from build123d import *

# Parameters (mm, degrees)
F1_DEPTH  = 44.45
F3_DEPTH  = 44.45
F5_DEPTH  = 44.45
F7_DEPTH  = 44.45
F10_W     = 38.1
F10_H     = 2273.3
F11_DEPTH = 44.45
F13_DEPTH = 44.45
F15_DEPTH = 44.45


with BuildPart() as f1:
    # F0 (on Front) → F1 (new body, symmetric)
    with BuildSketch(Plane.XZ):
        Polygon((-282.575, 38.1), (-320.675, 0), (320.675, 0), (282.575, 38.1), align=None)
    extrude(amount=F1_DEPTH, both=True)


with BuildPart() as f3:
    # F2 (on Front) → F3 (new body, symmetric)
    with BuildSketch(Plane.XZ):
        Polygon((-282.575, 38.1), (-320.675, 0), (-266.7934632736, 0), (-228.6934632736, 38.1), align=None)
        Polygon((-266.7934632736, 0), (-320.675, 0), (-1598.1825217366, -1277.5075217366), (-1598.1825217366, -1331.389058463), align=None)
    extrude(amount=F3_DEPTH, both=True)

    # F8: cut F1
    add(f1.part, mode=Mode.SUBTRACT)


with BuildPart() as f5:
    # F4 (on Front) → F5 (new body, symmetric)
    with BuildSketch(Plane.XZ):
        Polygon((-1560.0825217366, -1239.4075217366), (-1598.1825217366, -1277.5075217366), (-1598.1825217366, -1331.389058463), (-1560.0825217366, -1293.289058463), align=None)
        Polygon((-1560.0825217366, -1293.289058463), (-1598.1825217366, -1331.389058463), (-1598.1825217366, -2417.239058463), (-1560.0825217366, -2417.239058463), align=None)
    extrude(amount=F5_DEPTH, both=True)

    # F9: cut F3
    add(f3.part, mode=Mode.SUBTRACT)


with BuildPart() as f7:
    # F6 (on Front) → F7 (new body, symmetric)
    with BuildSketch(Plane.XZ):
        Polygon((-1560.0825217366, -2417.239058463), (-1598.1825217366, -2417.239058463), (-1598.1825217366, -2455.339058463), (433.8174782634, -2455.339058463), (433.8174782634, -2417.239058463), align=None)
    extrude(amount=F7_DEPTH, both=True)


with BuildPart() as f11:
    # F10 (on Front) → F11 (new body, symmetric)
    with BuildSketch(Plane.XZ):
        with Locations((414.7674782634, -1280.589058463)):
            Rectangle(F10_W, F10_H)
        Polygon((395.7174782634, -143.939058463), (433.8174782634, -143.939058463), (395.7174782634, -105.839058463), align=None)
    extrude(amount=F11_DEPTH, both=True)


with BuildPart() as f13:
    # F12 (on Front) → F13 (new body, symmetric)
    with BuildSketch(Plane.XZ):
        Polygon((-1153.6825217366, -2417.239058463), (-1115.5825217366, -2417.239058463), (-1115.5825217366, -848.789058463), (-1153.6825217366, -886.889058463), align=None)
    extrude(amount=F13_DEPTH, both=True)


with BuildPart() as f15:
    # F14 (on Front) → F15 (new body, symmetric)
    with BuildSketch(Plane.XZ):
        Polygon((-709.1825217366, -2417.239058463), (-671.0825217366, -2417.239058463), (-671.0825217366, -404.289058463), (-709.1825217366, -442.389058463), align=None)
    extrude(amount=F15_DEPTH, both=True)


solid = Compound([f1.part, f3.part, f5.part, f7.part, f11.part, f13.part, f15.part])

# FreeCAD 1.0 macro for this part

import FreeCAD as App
import Part
import Sketcher

V = App.Vector
Q = App.Units.Quantity


def add_polygon(sketch, points):
    """Adds a closed chain of lines whose ends are joined by coincident constraints."""
    first, n = sketch.GeometryCount, len(points)
    for a, b in zip(points, points[1:] + points[:1]):
        sketch.addGeometry(Part.LineSegment(App.Vector(*a, 0), App.Vector(*b, 0)), False)
    for i in range(n):
        sketch.addConstraint(Sketcher.Constraint("Coincident", first + i, 2, first + (i + 1) % n, 1))

doc = App.newDocument("Part")
body = doc.addObject("PartDesign::Body", "Body")

# Sketch on XZ plane
sketch1 = body.newObject("Sketcher::SketchObject", "Sketch")
sketch1.AttachmentSupport = (doc.getObject("XZ_Plane"), [""])
sketch1.MapMode = "FlatFace"
add_polygon(sketch1, [(-282.575, 38.1), (-320.675, 0), (320.675, 0), (282.575, 38.1)])  # lines 0-3
sketch1.addConstraint([
    Sketcher.Constraint("Horizontal", 1),
    Sketcher.Constraint("Horizontal", 3),
    Sketcher.Constraint("Symmetric", 0, 2, 1, 2, -1, 1),
    Sketcher.Constraint("Perpendicular", 0, 2),
    Sketcher.Constraint("Equal", 0, 2),
    Sketcher.Constraint("DistanceX", 1, 1, 1, 2, Q("25.25 in")),
    Sketcher.Constraint("DistanceX", 3, 2, 3, 1, Q("22.25 in")),
])
pad1 = body.newObject("PartDesign::Pad", "Pad")
pad1.Profile = sketch1
pad1.Length = Q("3.5 in")
pad1.Midplane = True
body2 = doc.addObject("PartDesign::Body", "Body001")

# Sketch on XZ plane
sketch2 = body2.newObject("Sketcher::SketchObject", "Sketch001")
sketch2.AttachmentSupport = (doc.getObject("XZ_Plane001"), [""])
sketch2.MapMode = "FlatFace"
add_polygon(sketch2, [(-282.575, 38.1), (-1598.182522, -1277.507522), (-1598.182522, -1331.389058), (-228.693463, 38.1)])  # lines 0-3
sketch2.addConstraint([
    Sketcher.Constraint("Vertical", 1),
    Sketcher.Constraint("Horizontal", 3),
    Sketcher.Constraint("Parallel", 0, 2),
    Sketcher.Constraint("Equal", 3, 1),
    Sketcher.Constraint("DistanceY", -1, 1, 2, 2, Q("1.5 in")),
    Sketcher.Constraint("Distance", 0, Q("73.25 in")),
    Sketcher.Constraint("Distance", 2, Q("76.25 in")),
    Sketcher.Constraint("DistanceX", 3, 2, -1, 1, Q("11.125 in")),
])
pad2 = body2.newObject("PartDesign::Pad", "Pad001")
pad2.Profile = sketch2
pad2.Length = Q("3.5 in")
pad2.Midplane = True
doc.recompute()

body3 = doc.addObject("PartDesign::Body", "Body002")
body3.BaseFeature = body
boolean = body2.newObject("PartDesign::Boolean", "Boolean")
boolean.Type = "Cut"
boolean.addObjects([body3])
doc.recompute()
body4 = doc.addObject("PartDesign::Body", "Body003")

# Sketch on XZ plane
sketch3 = body4.newObject("Sketcher::SketchObject", "Sketch002")
sketch3.AttachmentSupport = (doc.getObject("XZ_Plane003"), [""])
sketch3.MapMode = "FlatFace"
add_polygon(sketch3, [(-1560.082522, -1239.407522), (-1598.182522, -1277.507522), (-1598.182522, -2417.239058), (-1560.082522, -2417.239058)])  # lines 0-3
sketch3.addConstraint([
    Sketcher.Constraint("Vertical", 1),
    Sketcher.Constraint("Horizontal", 2),
    Sketcher.Constraint("Vertical", 3),
    Sketcher.Constraint("DistanceX", 2, 1, 2, 2, Q("1.5 in")),
    Sketcher.Constraint("Angle", 0, Q("-135 deg")),
    Sketcher.Constraint("DistanceY", 1, 2, 1, 1, 1139.731537),
    Sketcher.Constraint("DistanceX", 0, 2, -1, 1, 1598.182522),
    Sketcher.Constraint("DistanceY", 0, 2, -1, 1, 1277.507522),
])
pad3 = body4.newObject("PartDesign::Pad", "Pad002")
pad3.Profile = sketch3
pad3.Length = Q("3.5 in")
pad3.Midplane = True
doc.recompute()

body5 = doc.addObject("PartDesign::Body", "Body004")
body5.BaseFeature = body2
boolean2 = body4.newObject("PartDesign::Boolean", "Boolean001")
boolean2.Type = "Cut"
boolean2.addObjects([body5])
doc.recompute()
body6 = doc.addObject("PartDesign::Body", "Body005")

# Sketch on XZ plane
sketch4 = body6.newObject("Sketcher::SketchObject", "Sketch003")
sketch4.AttachmentSupport = (doc.getObject("XZ_Plane005"), [""])
sketch4.MapMode = "FlatFace"
add_polygon(sketch4, [(-1598.182522, -2417.239058), (-1598.182522, -2455.339058), (433.817478, -2455.339058), (433.817478, -2417.239058)])  # lines 0-3
sketch4.addConstraint([
    Sketcher.Constraint("Vertical", 0),
    Sketcher.Constraint("Horizontal", 1),
    Sketcher.Constraint("Vertical", 2),
    Sketcher.Constraint("Horizontal", 3),
    Sketcher.Constraint("DistanceX", 1, 1, 1, 2, Q("80 in")),
    Sketcher.Constraint("DistanceY", 0, 2, 0, 1, Q("1.5 in")),
    Sketcher.Constraint("DistanceX", 0, 2, -1, 1, 1598.182522),
    Sketcher.Constraint("DistanceY", 0, 2, -1, 1, 2455.339058),
])
pad4 = body6.newObject("PartDesign::Pad", "Pad003")
pad4.Profile = sketch4
pad4.Length = Q("3.5 in")
pad4.Midplane = True
body7 = doc.addObject("PartDesign::Body", "Body006")

# Sketch on XZ plane
sketch5 = body7.newObject("Sketcher::SketchObject", "Sketch004")
sketch5.AttachmentSupport = (doc.getObject("XZ_Plane006"), [""])
sketch5.MapMode = "FlatFace"
add_polygon(sketch5, [(395.717478, -2417.239058), (433.817478, -2417.239058), (433.817478, -143.939058), (395.717478, -105.839058)])  # lines 0-3
sketch5.addConstraint([
    Sketcher.Constraint("Horizontal", 0),
    Sketcher.Constraint("Vertical", 1),
    Sketcher.Constraint("Vertical", 3),
    Sketcher.Constraint("DistanceY", 3, 2, 3, 1, Q("91 in")),
    Sketcher.Constraint("DistanceX", 0, 1, 0, 2, Q("1.5 in")),
    Sketcher.Constraint("DistanceY", 1, 1, 1, 2, Q("89.5 in")),
    Sketcher.Constraint("DistanceX", -1, 1, 0, 2, 433.817478),
    Sketcher.Constraint("DistanceY", 0, 2, -1, 1, 2417.239058),
])
pad5 = body7.newObject("PartDesign::Pad", "Pad004")
pad5.Profile = sketch5
pad5.Length = Q("3.5 in")
pad5.Midplane = True
body8 = doc.addObject("PartDesign::Body", "Body007")

# Sketch on XZ plane
sketch6 = body8.newObject("Sketcher::SketchObject", "Sketch005")
sketch6.AttachmentSupport = (doc.getObject("XZ_Plane007"), [""])
sketch6.MapMode = "FlatFace"
add_polygon(sketch6, [(-1153.682522, -2417.239058), (-1115.582522, -2417.239058), (-1115.582522, -848.789058), (-1153.682522, -886.889058)])  # lines 0-3
sketch6.addConstraint([
    Sketcher.Constraint("Horizontal", 0),
    Sketcher.Constraint("Vertical", 1),
    Sketcher.Constraint("Vertical", 3),
    Sketcher.Constraint("DistanceX", 0, 1, 0, 2, Q("1.5 in")),
    Sketcher.Constraint("Angle", 2, Q("-135 deg")),
    Sketcher.Constraint("DistanceY", 1, 1, 1, 2, Q("61.75 in")),
    Sketcher.Constraint("DistanceX", 0, 2, -1, 1, 1115.582522),
    Sketcher.Constraint("DistanceY", 0, 2, -1, 1, 2417.239058),
])
pad6 = body8.newObject("PartDesign::Pad", "Pad005")
pad6.Profile = sketch6
pad6.Length = Q("3.5 in")
pad6.Midplane = True
body9 = doc.addObject("PartDesign::Body", "Body008")

# Sketch on XZ plane
sketch7 = body9.newObject("Sketcher::SketchObject", "Sketch006")
sketch7.AttachmentSupport = (doc.getObject("XZ_Plane008"), [""])
sketch7.MapMode = "FlatFace"
add_polygon(sketch7, [(-709.182522, -2417.239058), (-671.082522, -2417.239058), (-671.082522, -404.289058), (-709.182522, -442.389058)])  # lines 0-3
sketch7.addConstraint([
    Sketcher.Constraint("Horizontal", 0),
    Sketcher.Constraint("Vertical", 1),
    Sketcher.Constraint("Vertical", 3),
    Sketcher.Constraint("DistanceX", 0, 1, 0, 2, Q("1.5 in")),
    Sketcher.Constraint("Angle", 2, Q("-135 deg")),
    Sketcher.Constraint("DistanceY", 1, 1, 1, 2, Q("79.25 in")),
    Sketcher.Constraint("DistanceX", 0, 2, -1, 1, 671.082522),
    Sketcher.Constraint("DistanceY", 0, 2, -1, 1, 2417.239058),
])
pad7 = body9.newObject("PartDesign::Pad", "Pad006")
pad7.Profile = sketch7
pad7.Length = Q("3.5 in")
pad7.Midplane = True

doc.recompute()
